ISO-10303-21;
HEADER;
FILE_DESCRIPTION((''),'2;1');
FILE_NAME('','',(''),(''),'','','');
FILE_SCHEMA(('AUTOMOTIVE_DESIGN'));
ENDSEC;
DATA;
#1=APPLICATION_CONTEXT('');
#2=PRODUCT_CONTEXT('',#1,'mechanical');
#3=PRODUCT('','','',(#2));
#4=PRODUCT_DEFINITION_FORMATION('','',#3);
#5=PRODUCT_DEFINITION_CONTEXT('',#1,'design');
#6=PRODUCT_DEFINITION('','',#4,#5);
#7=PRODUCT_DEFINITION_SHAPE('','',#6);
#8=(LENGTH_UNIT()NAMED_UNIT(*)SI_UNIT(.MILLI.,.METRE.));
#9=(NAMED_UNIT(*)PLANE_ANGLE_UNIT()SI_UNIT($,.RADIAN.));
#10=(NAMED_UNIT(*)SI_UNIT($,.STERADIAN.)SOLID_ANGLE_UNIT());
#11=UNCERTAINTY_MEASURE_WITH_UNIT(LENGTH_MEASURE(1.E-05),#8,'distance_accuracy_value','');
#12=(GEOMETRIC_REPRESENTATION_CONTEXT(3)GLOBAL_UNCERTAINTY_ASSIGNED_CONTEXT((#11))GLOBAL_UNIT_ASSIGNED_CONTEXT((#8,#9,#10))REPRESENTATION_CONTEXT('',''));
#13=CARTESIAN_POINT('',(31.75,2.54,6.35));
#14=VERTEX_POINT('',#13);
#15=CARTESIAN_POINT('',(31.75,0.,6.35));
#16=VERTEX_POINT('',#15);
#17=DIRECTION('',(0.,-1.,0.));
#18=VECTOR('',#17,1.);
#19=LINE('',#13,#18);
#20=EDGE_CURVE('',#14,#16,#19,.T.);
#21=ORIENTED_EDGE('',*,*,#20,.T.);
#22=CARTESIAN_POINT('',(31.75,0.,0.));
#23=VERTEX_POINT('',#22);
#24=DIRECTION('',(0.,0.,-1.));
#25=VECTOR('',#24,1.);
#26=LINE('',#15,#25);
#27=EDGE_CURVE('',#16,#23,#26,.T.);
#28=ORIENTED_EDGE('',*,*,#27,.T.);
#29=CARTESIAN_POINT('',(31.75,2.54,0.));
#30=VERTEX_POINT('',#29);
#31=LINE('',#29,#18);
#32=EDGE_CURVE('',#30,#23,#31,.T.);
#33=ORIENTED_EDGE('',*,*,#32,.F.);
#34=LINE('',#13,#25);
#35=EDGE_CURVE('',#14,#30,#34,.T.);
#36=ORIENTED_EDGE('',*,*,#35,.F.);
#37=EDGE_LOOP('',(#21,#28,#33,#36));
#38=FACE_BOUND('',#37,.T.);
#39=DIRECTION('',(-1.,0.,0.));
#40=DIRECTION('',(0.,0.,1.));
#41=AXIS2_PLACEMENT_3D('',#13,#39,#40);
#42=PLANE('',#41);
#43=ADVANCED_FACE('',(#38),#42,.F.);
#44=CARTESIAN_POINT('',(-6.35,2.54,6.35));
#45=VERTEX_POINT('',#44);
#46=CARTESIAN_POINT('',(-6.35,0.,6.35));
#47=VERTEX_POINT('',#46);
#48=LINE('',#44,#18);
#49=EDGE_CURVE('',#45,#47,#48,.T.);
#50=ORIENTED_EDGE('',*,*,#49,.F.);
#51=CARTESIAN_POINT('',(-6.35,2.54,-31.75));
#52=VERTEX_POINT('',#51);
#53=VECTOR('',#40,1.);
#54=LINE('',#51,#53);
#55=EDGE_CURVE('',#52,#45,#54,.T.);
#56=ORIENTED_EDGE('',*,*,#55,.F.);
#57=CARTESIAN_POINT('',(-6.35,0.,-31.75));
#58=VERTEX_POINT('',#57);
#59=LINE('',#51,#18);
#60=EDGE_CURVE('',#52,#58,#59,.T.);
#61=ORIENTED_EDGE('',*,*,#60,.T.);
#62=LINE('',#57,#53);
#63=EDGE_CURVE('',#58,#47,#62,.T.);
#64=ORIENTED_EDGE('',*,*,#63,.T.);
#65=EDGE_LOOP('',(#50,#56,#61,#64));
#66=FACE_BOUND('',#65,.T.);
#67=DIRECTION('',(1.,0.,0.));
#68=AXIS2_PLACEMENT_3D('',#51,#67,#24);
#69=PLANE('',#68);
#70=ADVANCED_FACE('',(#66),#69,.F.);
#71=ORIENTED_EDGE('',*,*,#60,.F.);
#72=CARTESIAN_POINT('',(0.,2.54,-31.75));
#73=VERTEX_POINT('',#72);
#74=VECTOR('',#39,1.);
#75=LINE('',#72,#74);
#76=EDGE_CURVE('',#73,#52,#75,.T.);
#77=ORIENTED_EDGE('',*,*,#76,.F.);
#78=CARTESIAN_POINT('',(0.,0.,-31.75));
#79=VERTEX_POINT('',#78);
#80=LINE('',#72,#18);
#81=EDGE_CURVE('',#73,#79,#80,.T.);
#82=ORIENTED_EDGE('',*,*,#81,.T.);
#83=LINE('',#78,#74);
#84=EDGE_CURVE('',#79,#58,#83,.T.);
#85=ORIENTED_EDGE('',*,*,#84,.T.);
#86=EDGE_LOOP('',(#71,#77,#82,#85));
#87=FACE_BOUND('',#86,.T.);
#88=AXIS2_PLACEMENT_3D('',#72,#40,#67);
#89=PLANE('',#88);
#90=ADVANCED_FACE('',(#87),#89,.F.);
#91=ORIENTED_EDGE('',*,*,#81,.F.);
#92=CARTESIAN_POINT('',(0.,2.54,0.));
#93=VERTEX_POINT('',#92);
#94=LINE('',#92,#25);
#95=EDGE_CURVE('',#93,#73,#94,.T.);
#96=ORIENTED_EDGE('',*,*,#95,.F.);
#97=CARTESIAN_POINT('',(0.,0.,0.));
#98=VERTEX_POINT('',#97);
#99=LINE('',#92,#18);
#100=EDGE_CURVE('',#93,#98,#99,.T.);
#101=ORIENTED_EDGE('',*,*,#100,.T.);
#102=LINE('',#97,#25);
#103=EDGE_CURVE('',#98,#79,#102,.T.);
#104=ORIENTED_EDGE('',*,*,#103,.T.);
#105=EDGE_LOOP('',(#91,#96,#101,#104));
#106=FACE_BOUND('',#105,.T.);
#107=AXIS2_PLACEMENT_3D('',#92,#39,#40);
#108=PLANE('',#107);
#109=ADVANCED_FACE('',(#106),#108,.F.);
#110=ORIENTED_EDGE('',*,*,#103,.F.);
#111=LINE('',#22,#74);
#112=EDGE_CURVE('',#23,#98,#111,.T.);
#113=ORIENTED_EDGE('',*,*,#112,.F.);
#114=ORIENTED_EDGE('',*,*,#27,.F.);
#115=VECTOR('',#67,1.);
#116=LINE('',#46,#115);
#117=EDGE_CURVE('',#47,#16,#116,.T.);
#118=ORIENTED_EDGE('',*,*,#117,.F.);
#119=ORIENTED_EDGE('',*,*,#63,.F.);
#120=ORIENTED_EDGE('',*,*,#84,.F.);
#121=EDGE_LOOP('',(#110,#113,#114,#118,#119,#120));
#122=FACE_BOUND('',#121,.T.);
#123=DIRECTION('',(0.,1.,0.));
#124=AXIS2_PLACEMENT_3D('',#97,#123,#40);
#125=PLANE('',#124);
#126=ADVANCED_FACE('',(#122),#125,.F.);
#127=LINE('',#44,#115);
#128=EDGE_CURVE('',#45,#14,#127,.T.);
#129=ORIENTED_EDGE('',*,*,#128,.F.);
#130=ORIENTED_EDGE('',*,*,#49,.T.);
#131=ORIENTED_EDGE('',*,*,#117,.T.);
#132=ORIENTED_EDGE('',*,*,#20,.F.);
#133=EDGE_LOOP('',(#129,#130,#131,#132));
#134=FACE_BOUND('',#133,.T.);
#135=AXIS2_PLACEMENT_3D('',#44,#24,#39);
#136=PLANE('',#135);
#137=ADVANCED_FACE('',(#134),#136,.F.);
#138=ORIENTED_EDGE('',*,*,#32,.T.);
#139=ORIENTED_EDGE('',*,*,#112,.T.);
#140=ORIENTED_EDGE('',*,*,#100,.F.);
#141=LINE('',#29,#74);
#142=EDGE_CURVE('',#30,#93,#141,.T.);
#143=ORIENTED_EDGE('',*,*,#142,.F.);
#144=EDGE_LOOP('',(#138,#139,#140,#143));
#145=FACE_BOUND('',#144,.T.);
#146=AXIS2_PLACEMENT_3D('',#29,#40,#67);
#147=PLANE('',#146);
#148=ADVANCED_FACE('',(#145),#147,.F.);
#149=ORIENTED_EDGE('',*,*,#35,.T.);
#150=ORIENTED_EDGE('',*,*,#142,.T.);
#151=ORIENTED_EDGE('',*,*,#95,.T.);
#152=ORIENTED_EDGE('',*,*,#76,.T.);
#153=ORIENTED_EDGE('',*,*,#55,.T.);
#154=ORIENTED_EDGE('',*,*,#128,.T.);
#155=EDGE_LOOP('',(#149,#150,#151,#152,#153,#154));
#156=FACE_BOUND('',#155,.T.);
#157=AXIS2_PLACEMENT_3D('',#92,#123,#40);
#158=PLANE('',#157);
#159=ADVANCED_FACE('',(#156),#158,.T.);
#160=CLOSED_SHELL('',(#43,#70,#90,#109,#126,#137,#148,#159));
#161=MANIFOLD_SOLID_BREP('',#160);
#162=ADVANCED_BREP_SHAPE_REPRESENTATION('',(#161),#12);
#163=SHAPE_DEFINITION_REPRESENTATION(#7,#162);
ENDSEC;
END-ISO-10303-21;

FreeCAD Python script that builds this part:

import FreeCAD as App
import Part
import Sketcher

V = App.Vector
Q = App.Units.Quantity

doc = App.newDocument("Part")
body = doc.addObject("PartDesign::Body", "Body")

# Sketch on XZ plane
sketch1 = body.newObject("Sketcher::SketchObject", "Sketch")
sketch1.AttachmentSupport = (doc.getObject("XZ_Plane"), [""])
sketch1.MapMode = "FlatFace"
sketch1.addGeometry(Part.LineSegment(V(31.75, 0, 0), V(0, 0, 0)), False)
sketch1.addGeometry(Part.LineSegment(V(0, 0, 0), V(0, -31.75, 0)), False)
sketch1.addGeometry(Part.LineSegment(V(0, -31.75, 0), V(-6.35, -31.75, 0)), False)
sketch1.addGeometry(Part.LineSegment(V(-6.35, -31.75, 0), V(-6.35, 6.35, 0)), False)
sketch1.addGeometry(Part.LineSegment(V(-6.35, 6.35, 0), V(31.75, 6.35, 0)), False)
sketch1.addGeometry(Part.LineSegment(V(31.75, 6.35, 0), V(31.75, 0, 0)), False)
sketch1.addConstraint(Sketcher.Constraint("Coincident", 0, 2, 1, 1))
sketch1.addConstraint(Sketcher.Constraint("Coincident", 1, 2, 2, 1))
sketch1.addConstraint(Sketcher.Constraint("Coincident", 2, 2, 3, 1))
sketch1.addConstraint(Sketcher.Constraint("Coincident", 3, 2, 4, 1))
sketch1.addConstraint(Sketcher.Constraint("Coincident", 4, 2, 5, 1))
sketch1.addConstraint(Sketcher.Constraint("Coincident", 5, 2, 0, 1))
sketch1.addConstraint(Sketcher.Constraint("Horizontal", 0))
sketch1.addConstraint(Sketcher.Constraint("Vertical", 1))
sketch1.addConstraint(Sketcher.Constraint("Horizontal", 2))
sketch1.addConstraint(Sketcher.Constraint("Vertical", 3))
sketch1.addConstraint(Sketcher.Constraint("Horizontal", 4))
sketch1.addConstraint(Sketcher.Constraint("Vertical", 5))
sketch1.addConstraint(Sketcher.Constraint("Coincident", 0, 2, -1, 1))
sketch1.addConstraint(Sketcher.Constraint("Equal", 0, 1))
sketch1.addConstraint(Sketcher.Constraint("Equal", 4, 3))
sketch1.addConstraint(Sketcher.Constraint("DistanceX", 4, 1, 4, 2, Q("1.5 in")))
sketch1.addConstraint(Sketcher.Constraint("DistanceX", 0, 2, 0, 1, Q("1.25 in")))
pad1 = body.newObject("PartDesign::Pad", "Pad")
pad1.Profile = sketch1
pad1.Length = Q("0.1 in")
pad1.Reversed = True

doc.recompute()
